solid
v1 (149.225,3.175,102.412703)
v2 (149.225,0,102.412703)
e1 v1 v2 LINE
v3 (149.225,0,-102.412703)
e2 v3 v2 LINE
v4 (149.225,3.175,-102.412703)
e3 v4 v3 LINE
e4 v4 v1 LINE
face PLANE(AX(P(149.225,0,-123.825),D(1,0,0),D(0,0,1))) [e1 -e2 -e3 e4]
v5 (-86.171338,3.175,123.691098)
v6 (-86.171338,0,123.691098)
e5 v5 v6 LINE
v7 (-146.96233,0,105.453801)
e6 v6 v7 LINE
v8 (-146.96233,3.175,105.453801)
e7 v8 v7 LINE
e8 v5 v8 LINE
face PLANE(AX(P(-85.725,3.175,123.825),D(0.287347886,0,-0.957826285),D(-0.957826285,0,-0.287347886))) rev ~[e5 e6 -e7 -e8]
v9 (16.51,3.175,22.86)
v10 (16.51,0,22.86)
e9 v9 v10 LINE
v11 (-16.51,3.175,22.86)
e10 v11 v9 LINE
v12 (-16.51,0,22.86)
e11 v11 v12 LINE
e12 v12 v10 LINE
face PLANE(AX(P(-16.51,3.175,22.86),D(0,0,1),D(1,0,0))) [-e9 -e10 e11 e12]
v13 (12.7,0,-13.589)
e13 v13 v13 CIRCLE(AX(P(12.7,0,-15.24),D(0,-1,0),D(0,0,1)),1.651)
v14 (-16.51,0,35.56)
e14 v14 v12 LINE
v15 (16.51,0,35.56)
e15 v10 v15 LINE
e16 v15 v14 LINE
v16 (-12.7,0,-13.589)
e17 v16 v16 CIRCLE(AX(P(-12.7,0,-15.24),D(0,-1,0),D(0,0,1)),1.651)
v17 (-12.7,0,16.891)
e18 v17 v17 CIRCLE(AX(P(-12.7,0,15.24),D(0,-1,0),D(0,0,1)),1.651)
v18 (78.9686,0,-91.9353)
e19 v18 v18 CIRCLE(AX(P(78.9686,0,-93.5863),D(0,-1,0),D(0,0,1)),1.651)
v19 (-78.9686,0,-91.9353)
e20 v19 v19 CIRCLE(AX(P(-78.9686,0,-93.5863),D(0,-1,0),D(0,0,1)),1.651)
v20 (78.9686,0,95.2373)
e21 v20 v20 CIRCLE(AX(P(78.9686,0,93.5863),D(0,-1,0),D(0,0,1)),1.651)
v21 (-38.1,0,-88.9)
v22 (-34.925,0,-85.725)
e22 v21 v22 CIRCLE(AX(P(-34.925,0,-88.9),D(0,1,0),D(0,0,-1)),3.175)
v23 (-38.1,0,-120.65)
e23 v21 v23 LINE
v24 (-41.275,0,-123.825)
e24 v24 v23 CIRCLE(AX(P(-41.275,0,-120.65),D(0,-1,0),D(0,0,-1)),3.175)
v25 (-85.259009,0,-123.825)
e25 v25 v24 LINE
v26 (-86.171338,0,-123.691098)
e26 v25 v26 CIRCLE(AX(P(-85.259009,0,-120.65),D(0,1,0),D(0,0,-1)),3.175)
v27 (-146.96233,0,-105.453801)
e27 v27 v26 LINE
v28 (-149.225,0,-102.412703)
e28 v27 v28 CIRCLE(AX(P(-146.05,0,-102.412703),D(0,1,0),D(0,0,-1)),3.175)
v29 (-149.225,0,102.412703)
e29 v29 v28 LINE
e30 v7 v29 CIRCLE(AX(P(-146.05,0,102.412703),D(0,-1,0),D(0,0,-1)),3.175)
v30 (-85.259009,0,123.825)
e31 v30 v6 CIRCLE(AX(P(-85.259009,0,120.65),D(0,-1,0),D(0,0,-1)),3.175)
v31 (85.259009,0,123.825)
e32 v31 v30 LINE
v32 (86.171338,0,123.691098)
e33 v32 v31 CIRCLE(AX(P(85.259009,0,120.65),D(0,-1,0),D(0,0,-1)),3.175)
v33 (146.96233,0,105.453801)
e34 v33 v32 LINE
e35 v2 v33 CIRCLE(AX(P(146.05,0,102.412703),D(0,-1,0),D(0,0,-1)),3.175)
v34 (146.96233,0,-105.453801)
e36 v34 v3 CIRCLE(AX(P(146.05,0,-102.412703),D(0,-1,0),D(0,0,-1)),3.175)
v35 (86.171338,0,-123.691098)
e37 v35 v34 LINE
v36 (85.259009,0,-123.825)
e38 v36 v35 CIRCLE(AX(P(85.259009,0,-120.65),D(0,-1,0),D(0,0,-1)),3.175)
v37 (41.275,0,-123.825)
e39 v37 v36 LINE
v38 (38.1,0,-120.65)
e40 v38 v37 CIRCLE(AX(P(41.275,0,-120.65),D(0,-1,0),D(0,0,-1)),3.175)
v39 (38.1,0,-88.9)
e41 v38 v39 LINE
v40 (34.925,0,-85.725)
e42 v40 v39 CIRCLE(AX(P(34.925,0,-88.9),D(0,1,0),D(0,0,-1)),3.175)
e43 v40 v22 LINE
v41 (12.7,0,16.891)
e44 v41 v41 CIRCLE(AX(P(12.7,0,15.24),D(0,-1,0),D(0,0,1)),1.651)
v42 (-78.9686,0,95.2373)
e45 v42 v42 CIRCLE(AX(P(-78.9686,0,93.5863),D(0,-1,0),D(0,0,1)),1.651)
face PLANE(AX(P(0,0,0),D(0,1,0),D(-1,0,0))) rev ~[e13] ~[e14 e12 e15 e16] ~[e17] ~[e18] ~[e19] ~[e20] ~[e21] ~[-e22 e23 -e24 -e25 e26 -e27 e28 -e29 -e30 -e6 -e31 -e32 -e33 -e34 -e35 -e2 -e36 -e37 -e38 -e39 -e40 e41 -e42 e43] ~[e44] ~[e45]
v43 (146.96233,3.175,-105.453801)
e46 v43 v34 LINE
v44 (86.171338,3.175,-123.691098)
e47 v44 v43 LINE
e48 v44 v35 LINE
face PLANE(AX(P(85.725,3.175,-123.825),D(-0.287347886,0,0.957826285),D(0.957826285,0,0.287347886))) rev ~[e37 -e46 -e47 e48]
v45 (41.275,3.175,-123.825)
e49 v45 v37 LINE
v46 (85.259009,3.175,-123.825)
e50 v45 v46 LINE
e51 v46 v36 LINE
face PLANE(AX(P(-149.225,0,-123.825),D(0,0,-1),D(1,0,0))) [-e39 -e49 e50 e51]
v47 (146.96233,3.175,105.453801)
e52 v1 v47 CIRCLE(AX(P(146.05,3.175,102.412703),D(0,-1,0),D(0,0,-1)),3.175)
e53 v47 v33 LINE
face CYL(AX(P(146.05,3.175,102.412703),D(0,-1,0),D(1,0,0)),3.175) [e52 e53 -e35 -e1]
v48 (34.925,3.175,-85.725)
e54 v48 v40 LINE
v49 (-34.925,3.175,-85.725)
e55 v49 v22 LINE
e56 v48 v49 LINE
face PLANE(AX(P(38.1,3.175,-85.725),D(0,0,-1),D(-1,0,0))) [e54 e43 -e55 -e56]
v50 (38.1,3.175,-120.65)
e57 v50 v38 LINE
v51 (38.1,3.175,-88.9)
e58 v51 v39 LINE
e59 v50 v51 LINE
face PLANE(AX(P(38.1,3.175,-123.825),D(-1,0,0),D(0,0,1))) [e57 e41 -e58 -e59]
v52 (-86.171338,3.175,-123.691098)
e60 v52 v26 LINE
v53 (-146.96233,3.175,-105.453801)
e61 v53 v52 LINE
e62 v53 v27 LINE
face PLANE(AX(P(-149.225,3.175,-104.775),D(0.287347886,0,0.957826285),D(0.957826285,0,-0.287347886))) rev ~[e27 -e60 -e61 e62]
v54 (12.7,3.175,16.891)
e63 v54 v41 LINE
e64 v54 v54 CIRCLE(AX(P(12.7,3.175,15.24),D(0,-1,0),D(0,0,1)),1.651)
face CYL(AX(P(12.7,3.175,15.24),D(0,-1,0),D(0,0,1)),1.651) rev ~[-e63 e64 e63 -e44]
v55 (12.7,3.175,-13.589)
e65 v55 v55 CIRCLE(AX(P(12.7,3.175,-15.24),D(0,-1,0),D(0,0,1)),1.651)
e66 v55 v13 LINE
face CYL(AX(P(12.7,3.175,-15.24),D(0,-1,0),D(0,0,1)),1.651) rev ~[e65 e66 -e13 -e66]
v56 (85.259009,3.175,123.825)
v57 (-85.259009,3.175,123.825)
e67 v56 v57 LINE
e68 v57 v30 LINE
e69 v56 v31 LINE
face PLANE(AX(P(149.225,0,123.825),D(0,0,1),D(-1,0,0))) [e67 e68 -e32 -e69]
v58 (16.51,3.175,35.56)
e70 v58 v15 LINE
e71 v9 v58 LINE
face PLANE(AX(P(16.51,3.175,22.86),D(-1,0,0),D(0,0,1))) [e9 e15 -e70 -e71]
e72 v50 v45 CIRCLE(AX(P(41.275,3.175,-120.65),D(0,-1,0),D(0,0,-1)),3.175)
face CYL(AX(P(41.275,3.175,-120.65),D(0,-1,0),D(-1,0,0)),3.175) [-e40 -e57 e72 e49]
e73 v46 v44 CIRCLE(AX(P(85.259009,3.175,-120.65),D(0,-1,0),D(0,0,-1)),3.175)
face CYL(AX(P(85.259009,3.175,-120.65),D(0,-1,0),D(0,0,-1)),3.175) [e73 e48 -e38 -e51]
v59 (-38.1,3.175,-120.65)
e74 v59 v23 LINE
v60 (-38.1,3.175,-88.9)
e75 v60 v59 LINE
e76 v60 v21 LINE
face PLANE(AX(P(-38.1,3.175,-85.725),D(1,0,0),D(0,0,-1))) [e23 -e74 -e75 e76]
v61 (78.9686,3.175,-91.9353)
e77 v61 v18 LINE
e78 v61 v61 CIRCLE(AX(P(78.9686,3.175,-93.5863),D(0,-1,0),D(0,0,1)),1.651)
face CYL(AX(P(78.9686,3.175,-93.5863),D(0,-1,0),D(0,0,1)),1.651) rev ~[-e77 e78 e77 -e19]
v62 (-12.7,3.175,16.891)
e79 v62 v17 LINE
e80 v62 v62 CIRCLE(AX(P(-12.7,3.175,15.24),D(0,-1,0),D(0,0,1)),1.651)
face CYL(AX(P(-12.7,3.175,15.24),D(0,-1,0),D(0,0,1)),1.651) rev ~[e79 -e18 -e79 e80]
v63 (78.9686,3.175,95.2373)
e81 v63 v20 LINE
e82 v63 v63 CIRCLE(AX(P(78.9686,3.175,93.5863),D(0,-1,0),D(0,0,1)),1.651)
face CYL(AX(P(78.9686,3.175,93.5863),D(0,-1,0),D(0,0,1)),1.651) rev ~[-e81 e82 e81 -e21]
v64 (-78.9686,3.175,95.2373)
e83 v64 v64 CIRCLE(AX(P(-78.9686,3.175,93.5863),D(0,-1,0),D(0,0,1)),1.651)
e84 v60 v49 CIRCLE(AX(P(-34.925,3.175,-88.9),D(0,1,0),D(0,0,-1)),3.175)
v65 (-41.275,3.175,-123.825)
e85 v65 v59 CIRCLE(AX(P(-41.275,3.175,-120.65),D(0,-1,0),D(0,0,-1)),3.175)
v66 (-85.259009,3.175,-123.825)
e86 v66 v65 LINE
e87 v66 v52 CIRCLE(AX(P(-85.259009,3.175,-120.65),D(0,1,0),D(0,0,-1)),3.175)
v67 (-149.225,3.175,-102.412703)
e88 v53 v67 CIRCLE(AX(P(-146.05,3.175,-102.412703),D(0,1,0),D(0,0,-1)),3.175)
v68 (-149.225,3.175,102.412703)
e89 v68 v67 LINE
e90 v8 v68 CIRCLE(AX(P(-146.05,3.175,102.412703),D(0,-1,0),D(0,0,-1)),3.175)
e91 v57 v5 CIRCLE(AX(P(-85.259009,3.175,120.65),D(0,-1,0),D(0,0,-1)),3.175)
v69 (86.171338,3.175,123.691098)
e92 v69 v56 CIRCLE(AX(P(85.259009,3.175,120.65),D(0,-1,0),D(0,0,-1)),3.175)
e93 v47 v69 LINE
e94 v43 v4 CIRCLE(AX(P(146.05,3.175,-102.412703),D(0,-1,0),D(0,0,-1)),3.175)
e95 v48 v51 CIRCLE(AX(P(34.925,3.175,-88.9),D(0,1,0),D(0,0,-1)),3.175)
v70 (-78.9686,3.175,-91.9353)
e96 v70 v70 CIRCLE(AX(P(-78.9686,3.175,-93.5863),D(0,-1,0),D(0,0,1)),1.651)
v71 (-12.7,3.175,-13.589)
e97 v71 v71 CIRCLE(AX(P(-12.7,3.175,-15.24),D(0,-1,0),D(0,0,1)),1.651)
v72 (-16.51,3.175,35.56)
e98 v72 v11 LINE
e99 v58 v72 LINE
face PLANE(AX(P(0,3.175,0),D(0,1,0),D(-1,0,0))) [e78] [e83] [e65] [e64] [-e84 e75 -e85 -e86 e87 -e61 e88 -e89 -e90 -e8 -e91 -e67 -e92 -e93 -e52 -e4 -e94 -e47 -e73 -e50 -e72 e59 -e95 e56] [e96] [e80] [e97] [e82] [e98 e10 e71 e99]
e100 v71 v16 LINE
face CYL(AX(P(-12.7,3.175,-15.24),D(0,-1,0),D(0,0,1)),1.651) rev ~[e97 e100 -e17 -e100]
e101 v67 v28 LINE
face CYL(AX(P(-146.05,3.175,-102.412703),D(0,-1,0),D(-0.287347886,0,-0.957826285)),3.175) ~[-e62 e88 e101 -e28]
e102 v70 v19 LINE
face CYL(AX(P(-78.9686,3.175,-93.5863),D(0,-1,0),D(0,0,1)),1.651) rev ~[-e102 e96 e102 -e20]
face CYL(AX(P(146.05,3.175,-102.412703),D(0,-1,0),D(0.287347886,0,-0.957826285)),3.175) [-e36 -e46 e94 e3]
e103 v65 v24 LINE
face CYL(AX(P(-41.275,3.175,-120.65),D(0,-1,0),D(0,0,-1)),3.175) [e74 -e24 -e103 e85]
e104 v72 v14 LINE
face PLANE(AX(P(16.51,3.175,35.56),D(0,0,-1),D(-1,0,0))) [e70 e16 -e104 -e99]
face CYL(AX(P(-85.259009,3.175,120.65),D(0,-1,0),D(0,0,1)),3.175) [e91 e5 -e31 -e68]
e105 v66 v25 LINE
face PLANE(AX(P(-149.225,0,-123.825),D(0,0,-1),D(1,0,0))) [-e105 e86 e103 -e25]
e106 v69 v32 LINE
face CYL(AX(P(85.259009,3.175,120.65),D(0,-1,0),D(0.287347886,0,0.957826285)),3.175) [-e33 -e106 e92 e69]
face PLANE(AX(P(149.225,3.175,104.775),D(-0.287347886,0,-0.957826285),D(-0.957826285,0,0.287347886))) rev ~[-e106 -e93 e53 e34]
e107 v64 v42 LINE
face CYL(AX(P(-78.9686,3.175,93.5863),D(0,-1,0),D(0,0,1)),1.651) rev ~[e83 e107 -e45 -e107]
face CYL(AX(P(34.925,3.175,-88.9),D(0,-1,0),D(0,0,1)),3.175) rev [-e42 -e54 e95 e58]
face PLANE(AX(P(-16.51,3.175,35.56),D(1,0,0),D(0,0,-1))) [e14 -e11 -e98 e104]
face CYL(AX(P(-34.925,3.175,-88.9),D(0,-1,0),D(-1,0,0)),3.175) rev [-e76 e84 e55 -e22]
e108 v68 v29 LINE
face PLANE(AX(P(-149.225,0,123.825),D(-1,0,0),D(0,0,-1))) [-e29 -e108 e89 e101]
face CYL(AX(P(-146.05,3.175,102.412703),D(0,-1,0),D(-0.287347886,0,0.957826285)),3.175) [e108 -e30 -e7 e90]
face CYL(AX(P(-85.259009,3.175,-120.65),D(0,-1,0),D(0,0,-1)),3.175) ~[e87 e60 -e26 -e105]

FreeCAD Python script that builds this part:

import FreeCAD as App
import Part
import Sketcher
Q = App.Units.Quantity


def edges_at(feature, points):
    """Names of the edges that pass closest to the given points."""
    edges = feature.Shape.Edges
    near = lambda p: min(range(len(edges)), key=lambda i: edges[i].distToShape(Part.Vertex(*p))[0])
    return sorted({f"Edge{near(p) + 1}" for p in points})

doc = App.newDocument("Part")
body = doc.addObject("PartDesign::Body", "Body")

# Sketch on XZ plane
sketch1 = doc.addObject("Sketcher::SketchObject", "Sketch")
body.addObject(sketch1)
sketch1.AttachmentSupport = (doc.XZ_Plane, [""])
sketch1.MapMode = "FlatFace"
sketch1.addGeometry([
    Part.LineSegment(App.Vector(149.225, -123.825, 0), App.Vector(-149.225, -123.825, 0)),
    Part.LineSegment(App.Vector(-149.225, -123.825, 0), App.Vector(-149.225, 123.825, 0)),
    Part.LineSegment(App.Vector(-149.225, 123.825, 0), App.Vector(149.225, 123.825, 0)),
    Part.LineSegment(App.Vector(149.225, 123.825, 0), App.Vector(149.225, -123.825, 0)),
], False)
sketch1.addConstraint([
    Sketcher.Constraint("Coincident", 0, 2, 1, 1),
    Sketcher.Constraint("Coincident", 1, 2, 2, 1),
    Sketcher.Constraint("Coincident", 2, 2, 3, 1),
    Sketcher.Constraint("Coincident", 3, 2, 0, 1),
    Sketcher.Constraint("Horizontal", 0),
    Sketcher.Constraint("Vertical", 1),
    Sketcher.Constraint("Horizontal", 2),
    Sketcher.Constraint("Vertical", 3),
    Sketcher.Constraint("Symmetric", 0, 2, 2, 2, -1, 1),
    Sketcher.Constraint("DistanceX", 0, 2, 0, 1, Q("11.75 in")),
    Sketcher.Constraint("DistanceY", 1, 1, 1, 2, Q("9.75 in")),
])
pad1 = doc.addObject("PartDesign::Pad", "Pad")
body.addObject(pad1)
pad1.Profile = sketch1
pad1.Length = Q("0.125 in")
pad1.Reversed = True

# Sketch on XZ plane
sketch2 = doc.addObject("Sketcher::SketchObject", "Sketch001")
body.addObject(sketch2)
sketch2.AttachmentSupport = (doc.XZ_Plane, [""])
sketch2.MapMode = "FlatFace"
sketch2.AttachmentOffset = App.Placement(App.Vector(0, 0, -0.125 * 25.4), App.Rotation())
sketch2.addGeometry([
    Part.LineSegment(App.Vector(149.225, -104.775, 0), App.Vector(149.225, -123.825, 0)),  # 0
    Part.LineSegment(App.Vector(149.225, -123.825, 0), App.Vector(85.725, -123.825, 0)),  # 1
    Part.LineSegment(App.Vector(85.725, -123.825, 0), App.Vector(149.225, -104.775, 0)),  # 2
    Part.LineSegment(App.Vector(-149.225, -104.775, 0), App.Vector(-85.725, -123.825, 0)),  # 3
    Part.LineSegment(App.Vector(-85.725, -123.825, 0), App.Vector(-149.225, -123.825, 0)),  # 4
    Part.LineSegment(App.Vector(-149.225, -123.825, 0), App.Vector(-149.225, -104.775, 0)),  # 5
    Part.LineSegment(App.Vector(149.225, 123.825, 0), App.Vector(149.225, 104.775, 0)),  # 6
    Part.LineSegment(App.Vector(149.225, 104.775, 0), App.Vector(85.725, 123.825, 0)),  # 7
    Part.LineSegment(App.Vector(85.725, 123.825, 0), App.Vector(149.225, 123.825, 0)),  # 8
    Part.LineSegment(App.Vector(-85.725, 123.825, 0), App.Vector(-149.225, 104.775, 0)),  # 9
    Part.LineSegment(App.Vector(-149.225, 104.775, 0), App.Vector(-149.225, 123.825, 0)),  # 10
    Part.LineSegment(App.Vector(-149.225, 123.825, 0), App.Vector(-85.725, 123.825, 0)),  # 11
], False)
sketch2.addConstraint([
    Sketcher.Constraint("Coincident", 0, 2, 1, 1),
    Sketcher.Constraint("Coincident", 1, 2, 2, 1),
    Sketcher.Constraint("Coincident", 2, 2, 0, 1),
    Sketcher.Constraint("Coincident", 3, 2, 4, 1),
    Sketcher.Constraint("Coincident", 4, 2, 5, 1),
    Sketcher.Constraint("Coincident", 5, 2, 3, 1),
    Sketcher.Constraint("Coincident", 6, 2, 7, 1),
    Sketcher.Constraint("Coincident", 7, 2, 8, 1),
    Sketcher.Constraint("Coincident", 8, 2, 6, 1),
    Sketcher.Constraint("Coincident", 9, 2, 10, 1),
    Sketcher.Constraint("Coincident", 10, 2, 11, 1),
    Sketcher.Constraint("Coincident", 11, 2, 9, 1),
    Sketcher.Constraint("Vertical", 0),
    Sketcher.Constraint("Horizontal", 1),
    Sketcher.Constraint("Horizontal", 4),
    Sketcher.Constraint("Vertical", 5),
    Sketcher.Constraint("Vertical", 6),
    Sketcher.Constraint("Horizontal", 8),
    Sketcher.Constraint("Vertical", 10),
    Sketcher.Constraint("Horizontal", 11),
    Sketcher.Constraint("Symmetric", 5, 2, 6, 2, -1, 1),
    Sketcher.Constraint("Symmetric", 3, 2, 7, 2, -1, 1),
    Sketcher.Constraint("Symmetric", 2, 2, 9, 2, -1, 1),
    Sketcher.Constraint("Symmetric", 1, 2, 11, 2, -1, 1),
    Sketcher.Constraint("Symmetric", 1, 2, 3, 2, -2),
    Sketcher.Constraint("Symmetric", 2, 2, 5, 2, -2),
    Sketcher.Constraint("DistanceX", 1, 2, 1, 1, Q("2.5 in")),
    Sketcher.Constraint("DistanceY", 0, 2, 0, 1, Q("0.75 in")),
    Sketcher.Constraint("DistanceY", 0, 2, 6, 2, Q("9 in")),
    Sketcher.Constraint("DistanceX", 3, 2, 1, 2, Q("6.75 in")),
])
pocket1 = doc.addObject("PartDesign::Pocket", "Pocket")
body.addObject(pocket1)
pocket1.Profile = sketch2
pocket1.Length = Q("0.125 in")
pocket1.Reversed = True

# Sketch on XZ plane
sketch3 = doc.addObject("Sketcher::SketchObject", "Sketch002")
body.addObject(sketch3)
sketch3.AttachmentSupport = (doc.XZ_Plane, [""])
sketch3.MapMode = "FlatFace"
sketch3.AttachmentOffset = App.Placement(App.Vector(0, 0, -0.125 * 25.4), App.Rotation())
sketch3.addGeometry([
    Part.LineSegment(App.Vector(38.1, -85.725, 0), App.Vector(38.1, -123.825, 0)),
    Part.LineSegment(App.Vector(38.1, -123.825, 0), App.Vector(-38.1, -123.825, 0)),
    Part.LineSegment(App.Vector(-38.1, -123.825, 0), App.Vector(-38.1, -85.725, 0)),
    Part.LineSegment(App.Vector(-38.1, -85.725, 0), App.Vector(38.1, -85.725, 0)),
], False)
sketch3.addConstraint([
    Sketcher.Constraint("Coincident", 0, 2, 1, 1),
    Sketcher.Constraint("Coincident", 1, 2, 2, 1),
    Sketcher.Constraint("Coincident", 2, 2, 3, 1),
    Sketcher.Constraint("Coincident", 3, 2, 0, 1),
    Sketcher.Constraint("Vertical", 0),
    Sketcher.Constraint("Horizontal", 1),
    Sketcher.Constraint("Vertical", 2),
    Sketcher.Constraint("Horizontal", 3),
    Sketcher.Constraint("DistanceX", 1, 2, 1, 1, Q("3 in")),
    Sketcher.Constraint("DistanceY", 0, 2, 0, 1, Q("1.5 in")),
    Sketcher.Constraint("DistanceX", -1, 1, 0, 2, Q("1.5 in")),
    Sketcher.Constraint("DistanceY", 0, 2, -1, 1, Q("4.875 in")),
])
pocket2 = doc.addObject("PartDesign::Pocket", "Pocket001")
body.addObject(pocket2)
pocket2.Profile = sketch3
pocket2.Length = Q("0.125 in")
pocket2.Reversed = True
doc.recompute()

fillet = doc.addObject("PartDesign::Fillet", "Fillet")
body.addObject(fillet)
fillet.Base = (pocket2, edges_at(pocket2, [
    (38.1, 1.587, -85.725),
    (-38.1, 1.587, -85.725),
    (38.1, 1.587, -123.825),
    (-38.1, 1.587, -123.825),
    (85.725, 1.587, -123.825),
    (-85.725, 1.587, -123.825),
    (-149.225, 1.587, -104.775),
    (149.225, 1.587, -104.775),
    (-149.225, 1.587, 104.775),
    (-85.725, 1.587, 123.825),
    (85.725, 1.587, 123.825),
    (149.225, 1.587, 104.775),
]))
fillet.Radius = Q("0.125 in")

# Sketch on XZ plane
sketch4 = doc.addObject("Sketcher::SketchObject", "Sketch003")
body.addObject(sketch4)
sketch4.AttachmentSupport = (doc.XZ_Plane, [""])
sketch4.MapMode = "FlatFace"
sketch4.AttachmentOffset = App.Placement(App.Vector(0, 0, -0.125 * 25.4), App.Rotation())
sketch4.addGeometry([
    Part.Circle(App.Vector(-78.9686, -93.5863, 0), App.Vector(0, 0, 1), 1.651),
    Part.Circle(App.Vector(-78.9686, 93.5863, 0), App.Vector(0, 0, 1), 1.651),
    Part.Circle(App.Vector(78.9686, 93.5863, 0), App.Vector(0, 0, 1), 1.651),
    Part.Circle(App.Vector(78.9686, -93.5863, 0), App.Vector(0, 0, 1), 1.651),
], False)
sketch4.addConstraint([
    Sketcher.Constraint("Equal", 0, 1),
    Sketcher.Constraint("Equal", 1, 2),
    Sketcher.Constraint("Equal", 2, 3),
    Sketcher.Constraint("Symmetric", 0, 3, 2, 3, -1, 1),
    Sketcher.Constraint("Symmetric", 1, 3, 3, 3, -1, 1),
    Sketcher.Constraint("Symmetric", 1, 3, 2, 3, -2),
    Sketcher.Constraint("Diameter", 0, Q("0.13 in")),
    Sketcher.Constraint("DistanceX", 0, 3, -1, 1, Q("3.109 in")),
    Sketcher.Constraint("DistanceY", 0, 3, 1, 3, Q("7.369 in")),
])
doc.recompute()
hole = doc.addObject("PartDesign::Hole", "Hole")
body.addObject(hole)
hole.Profile = sketch4
hole.ThreadType = "None"
hole.Diameter = Q("0.13 in")
hole.DepthType = "ThroughAll"
hole.Reversed = True

# Sketch on XZ plane
sketch5 = doc.addObject("Sketcher::SketchObject", "Sketch004")
body.addObject(sketch5)
sketch5.AttachmentSupport = (doc.XZ_Plane, [""])
sketch5.MapMode = "FlatFace"
sketch5.AttachmentOffset = App.Placement(App.Vector(0, 0, -0.125 * 25.4), App.Rotation())
sketch5.addGeometry([
    Part.Circle(App.Vector(-12.7, -15.24, 0), App.Vector(0, 0, 1), 1.651),
    Part.Circle(App.Vector(12.7, -15.24, 0), App.Vector(0, 0, 1), 1.651),
    Part.Circle(App.Vector(-12.7, 15.24, 0), App.Vector(0, 0, 1), 1.651),
    Part.Circle(App.Vector(12.7, 15.24, 0), App.Vector(0, 0, 1), 1.651),
], False)
sketch5.addConstraint([
    Sketcher.Constraint("Equal", 0, 1),
    Sketcher.Constraint("Equal", 1, 2),
    Sketcher.Constraint("Equal", 2, 3),
    Sketcher.Constraint("Symmetric", 1, 3, 2, 3, -1, 1),
    Sketcher.Constraint("Symmetric", 0, 3, 3, 3, -1, 1),
    Sketcher.Constraint("Symmetric", 0, 3, 1, 3, -2),
    Sketcher.Constraint("Diameter", 0, Q("0.13 in")),
    Sketcher.Constraint("DistanceX", 0, 3, 1, 3, Q("1 in")),
    Sketcher.Constraint("DistanceY", 0, 3, -1, 1, Q("0.6 in")),
])
doc.recompute()
hole2 = doc.addObject("PartDesign::Hole", "Hole001")
body.addObject(hole2)
hole2.Profile = sketch5
hole2.ThreadType = "None"
hole2.Diameter = Q("0.13 in")
hole2.DepthType = "ThroughAll"
hole2.Reversed = True

# Sketch on XZ plane
sketch6 = doc.addObject("Sketcher::SketchObject", "Sketch005")
body.addObject(sketch6)
sketch6.AttachmentSupport = (doc.XZ_Plane, [""])
sketch6.MapMode = "FlatFace"
sketch6.AttachmentOffset = App.Placement(App.Vector(0, 0, -0.125 * 25.4), App.Rotation())
sketch6.addGeometry([
    Part.LineSegment(App.Vector(16.51, 22.86, 0), App.Vector(-16.51, 22.86, 0)),
    Part.LineSegment(App.Vector(-16.51, 22.86, 0), App.Vector(-16.51, 35.56, 0)),
    Part.LineSegment(App.Vector(-16.51, 35.56, 0), App.Vector(16.51, 35.56, 0)),
    Part.LineSegment(App.Vector(16.51, 35.56, 0), App.Vector(16.51, 22.86, 0)),
], False)
sketch6.addConstraint([
    Sketcher.Constraint("Coincident", 0, 2, 1, 1),
    Sketcher.Constraint("Coincident", 1, 2, 2, 1),
    Sketcher.Constraint("Coincident", 2, 2, 3, 1),
    Sketcher.Constraint("Coincident", 3, 2, 0, 1),
    Sketcher.Constraint("Horizontal", 0),
    Sketcher.Constraint("Vertical", 1),
    Sketcher.Constraint("Horizontal", 2),
    Sketcher.Constraint("Vertical", 3),
    Sketcher.Constraint("DistanceX", 0, 2, 0, 1, Q("1.3 in")),
    Sketcher.Constraint("DistanceY", 1, 1, 1, 2, Q("0.5 in")),
    Sketcher.Constraint("DistanceY", -1, 1, 0, 2, Q("0.9 in")),
    Sketcher.Constraint("DistanceX", 0, 2, -1, 1, Q("0.65 in")),
])
pocket3 = doc.addObject("PartDesign::Pocket", "Pocket002")
body.addObject(pocket3)
pocket3.Profile = sketch6
pocket3.Length = Q("1 in")
pocket3.Reversed = True

doc.recompute()
